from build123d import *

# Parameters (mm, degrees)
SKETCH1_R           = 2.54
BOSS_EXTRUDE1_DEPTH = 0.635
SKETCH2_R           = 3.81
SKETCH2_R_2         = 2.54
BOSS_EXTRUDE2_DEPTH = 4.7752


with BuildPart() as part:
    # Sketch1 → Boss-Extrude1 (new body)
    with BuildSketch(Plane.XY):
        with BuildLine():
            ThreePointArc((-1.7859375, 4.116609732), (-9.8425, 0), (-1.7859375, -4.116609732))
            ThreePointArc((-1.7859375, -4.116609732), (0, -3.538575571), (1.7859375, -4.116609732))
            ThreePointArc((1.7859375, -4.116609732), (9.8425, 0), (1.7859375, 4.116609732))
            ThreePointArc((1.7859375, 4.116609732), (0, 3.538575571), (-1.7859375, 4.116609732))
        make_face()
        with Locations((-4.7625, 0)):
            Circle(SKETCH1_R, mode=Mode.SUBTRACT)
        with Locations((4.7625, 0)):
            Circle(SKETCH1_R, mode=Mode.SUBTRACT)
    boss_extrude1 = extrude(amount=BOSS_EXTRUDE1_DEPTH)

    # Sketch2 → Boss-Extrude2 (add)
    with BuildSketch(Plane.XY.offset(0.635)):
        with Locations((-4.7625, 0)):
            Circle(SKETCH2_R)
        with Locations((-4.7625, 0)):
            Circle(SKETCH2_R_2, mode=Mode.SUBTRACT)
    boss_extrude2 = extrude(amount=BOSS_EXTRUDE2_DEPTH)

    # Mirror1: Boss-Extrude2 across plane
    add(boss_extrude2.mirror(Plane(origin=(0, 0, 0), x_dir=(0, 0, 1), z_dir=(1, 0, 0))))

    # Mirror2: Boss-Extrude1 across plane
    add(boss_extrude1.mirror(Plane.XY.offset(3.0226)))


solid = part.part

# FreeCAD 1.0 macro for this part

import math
import FreeCAD as App
import Part
import Sketcher

V = App.Vector
Q = App.Units.Quantity

doc = App.newDocument("Part")
body = doc.addObject("PartDesign::Body", "Body")

sketch1 = doc.addObject("Sketcher::SketchObject", "Sketch")
body.addObject(sketch1)
sketch1.AttachmentSupport = (doc.XY_Plane, [""])
sketch1.MapMode = "FlatFace"
sketch1.addGeometry([
    Part.ArcOfCircle(Part.Circle(V(-4.8, 0, 0), V(0, 0, 1), 5.1), math.radians(54), math.radians(306)),
    Part.ArcOfCircle(Part.Circle(V(0, -6.6, 0), V(0, 0, 1), 3), math.radians(54), math.radians(126)),
    Part.ArcOfCircle(Part.Circle(V(4.8, 0, 0), V(0, 0, 1), 5.1), math.radians(-126), math.radians(126)),
    Part.ArcOfCircle(Part.Circle(V(0, 6.6, 0), V(0, 0, 1), 3), math.radians(-126), math.radians(-54)),
    Part.Circle(V(-4.8, 0, 0), V(0, 0, 1), 2.5),
    Part.Circle(V(4.8, 0, 0), V(0, 0, 1), 2.5),
], False)
sketch1.addConstraint([
    Sketcher.Constraint("Tangent", 0, 2, 1, 2),
    Sketcher.Constraint("Tangent", 1, 1, 2, 1),
    Sketcher.Constraint("Tangent", 2, 2, 3, 2),
    Sketcher.Constraint("Tangent", 3, 1, 0, 1),
    Sketcher.Constraint("Coincident", 4, 3, 0, 3),
    Sketcher.Constraint("Coincident", 5, 3, 2, 3),
    Sketcher.Constraint("Equal", 0, 2),
    Sketcher.Constraint("Equal", 1, 3),
    Sketcher.Constraint("Equal", 4, 5),
    Sketcher.Constraint("Symmetric", 0, 3, 2, 3, -1, 1),
    Sketcher.Constraint("PointOnObject", 0, 3, -1),
    Sketcher.Constraint("Diameter", 4, Q("0.2 in")),
    Sketcher.Constraint("Radius", 0, Q("0.2 in")),
    Sketcher.Constraint("Radius", 1, Q("0.12 in")),
    Sketcher.Constraint("DistanceX", 0, 3, -1, 1, Q("0.1875 in")),
])
pad1 = doc.addObject("PartDesign::Pad", "Pad")
body.addObject(pad1)
pad1.Profile = sketch1
pad1.Length = Q("0.025 in")

sketch2 = doc.addObject("Sketcher::SketchObject", "Sketch001")
body.addObject(sketch2)
sketch2.AttachmentSupport = (doc.XY_Plane, [""])
sketch2.MapMode = "FlatFace"
sketch2.AttachmentOffset = App.Placement(V(0, 0, 0.025 * 25.4), App.Rotation())
sketch2.addGeometry([
    Part.Circle(V(-4.8, 0, 0), V(0, 0, 1), 3.8),
    Part.Circle(V(-4.8, 0, 0), V(0, 0, 1), 2.5),
], False)
sketch2.addConstraint([
    Sketcher.Constraint("Coincident", 1, 3, 0, 3),
    Sketcher.Constraint("PointOnObject", 0, 3, -1),
    Sketcher.Constraint("Diameter", 0, Q("0.3 in")),
    Sketcher.Constraint("Diameter", 1, Q("0.2 in")),
    Sketcher.Constraint("DistanceX", 0, 3, -1, 1, Q("0.1875 in")),
])
pad2 = doc.addObject("PartDesign::Pad", "Pad001")
body.addObject(pad2)
pad2.Profile = sketch2
pad2.Length = Q("0.188 in")
doc.recompute()

mirrored = doc.addObject("PartDesign::Mirrored", "Mirrored")
body.addObject(mirrored)
mirrored.Originals = [pad2]
mirrored.MirrorPlane = (doc.YZ_Plane, [""])
body.Tip = mirrored
doc.recompute()

datumplane = doc.addObject("PartDesign::Plane", "DatumPlane")
body.addObject(datumplane)
datumplane.AttachmentSupport = (doc.XY_Plane, [""])
datumplane.MapMode = "FlatFace"
datumplane.AttachmentOffset = App.Placement(V(0, 0, 0.119 * 25.4), App.Rotation())
mirrored2 = doc.addObject("PartDesign::Mirrored", "Mirrored001")
body.addObject(mirrored2)
mirrored2.Originals = [pad1]
mirrored2.MirrorPlane = (datumplane, [""])
body.Tip = mirrored2

doc.recompute()
